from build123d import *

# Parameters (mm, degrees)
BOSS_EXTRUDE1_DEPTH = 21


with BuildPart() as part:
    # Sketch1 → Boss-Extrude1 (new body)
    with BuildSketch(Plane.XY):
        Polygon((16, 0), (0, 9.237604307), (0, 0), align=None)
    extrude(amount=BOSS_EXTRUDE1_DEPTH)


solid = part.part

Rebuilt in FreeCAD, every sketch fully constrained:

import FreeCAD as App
import Part
import Sketcher

V = App.Vector
Q = App.Units.Quantity

doc = App.newDocument("Part")
body = doc.addObject("PartDesign::Body", "Body")

# Sketch on XY plane
sketch1 = doc.addObject("Sketcher::SketchObject", "Sketch")
body.addObject(sketch1)
sketch1.AttachmentSupport = (doc.XY_Plane, [""])
sketch1.MapMode = "FlatFace"
sketch1.addGeometry([
    Part.LineSegment(V(16, 0, 0), V(0, 9, 0)),
    Part.LineSegment(V(0, 9, 0), V(0, 0, 0)),
    Part.LineSegment(V(0, 0, 0), V(16, 0, 0)),
], False)
sketch1.addConstraint([
    Sketcher.Constraint("Coincident", 0, 2, 1, 1),
    Sketcher.Constraint("Coincident", 1, 2, 2, 1),
    Sketcher.Constraint("Coincident", 2, 2, 0, 1),
    Sketcher.Constraint("Vertical", 1),
    Sketcher.Constraint("Horizontal", 2),
    Sketcher.Constraint("Coincident", 1, 2, -1, 1),
    Sketcher.Constraint("DistanceX", 2, 1, 2, 2, Q("16 mm")),
    Sketcher.Constraint("Angle", 0, Q("150 deg")),
])
pad1 = doc.addObject("PartDesign::Pad", "Pad")
body.addObject(pad1)
pad1.Profile = sketch1
pad1.Length = 21

doc.recompute()
